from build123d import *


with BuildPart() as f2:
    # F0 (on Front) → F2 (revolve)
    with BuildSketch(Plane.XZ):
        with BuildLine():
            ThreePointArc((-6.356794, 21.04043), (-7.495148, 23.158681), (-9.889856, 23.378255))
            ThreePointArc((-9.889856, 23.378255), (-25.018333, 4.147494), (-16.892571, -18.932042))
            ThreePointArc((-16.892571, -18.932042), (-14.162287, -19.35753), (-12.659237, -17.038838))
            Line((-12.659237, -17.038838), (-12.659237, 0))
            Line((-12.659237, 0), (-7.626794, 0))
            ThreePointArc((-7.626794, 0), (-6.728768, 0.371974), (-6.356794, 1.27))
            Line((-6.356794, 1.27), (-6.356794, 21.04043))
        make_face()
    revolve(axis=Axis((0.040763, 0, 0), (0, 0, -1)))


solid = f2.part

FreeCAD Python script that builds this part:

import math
import FreeCAD as App
import Part
import Sketcher
Q = App.Units.Quantity

doc = App.newDocument("Part")
body = doc.addObject("PartDesign::Body", "Body")

sketch1 = body.newObject("Sketcher::SketchObject", "Sketch")
sketch1.AttachmentSupport = (doc.getObject("XZ_Plane"), [""])
sketch1.MapMode = "FlatFace"
sketch1.addGeometry([
    Part.ArcOfCircle(Part.Circle(App.Vector(-8.9, 21, 0), App.Vector(0, 0, 1), 2.5), math.radians(0), math.radians(113)),
    Part.ArcOfCircle(Part.Circle(App.Vector(0, 0, 0), App.Vector(0, 0, 1), 25.4), math.radians(113), math.radians(228)),
    Part.ArcOfCircle(Part.Circle(App.Vector(-15.2, -17, 0), App.Vector(0, 0, 1), 2.5), math.radians(-132), math.radians(0)),
    Part.LineSegment(App.Vector(-12.7, -17, 0), App.Vector(-12.7, 0, 0)),
    Part.LineSegment(App.Vector(-12.7, 0, 0), App.Vector(-7.6, 0, 0)),
    Part.ArcOfCircle(Part.Circle(App.Vector(-7.6, 1.3, 0), App.Vector(0, 0, 1), 1.3), math.radians(-90), math.radians(0)),
    Part.LineSegment(App.Vector(-6.4, 1.3, 0), App.Vector(-6.4, 21, 0)),
], False)
sketch1.addGeometry(Part.LineSegment(App.Vector(0, 23.4, 0), App.Vector(0, -18.9, 0)), True)
sketch1.addConstraint([
    Sketcher.Constraint("Tangent", 0, 2, 1, 1),
    Sketcher.Constraint("Tangent", 1, 2, 2, 1),
    Sketcher.Constraint("Tangent", 2, 2, 3, 1),
    Sketcher.Constraint("Coincident", 3, 2, 4, 1),
    Sketcher.Constraint("Tangent", 4, 2, 5, 1),
    Sketcher.Constraint("Tangent", 5, 2, 6, 1),
    Sketcher.Constraint("Tangent", 6, 2, 0, 1),
    Sketcher.Constraint("Vertical", 3),
    Sketcher.Constraint("Horizontal", 4),
    Sketcher.Constraint("Vertical", 6),
    Sketcher.Constraint("Vertical", 7),
    Sketcher.Constraint("Equal", 0, 2),
    Sketcher.Constraint("PointOnObject", 1, 3, -1),
    Sketcher.Constraint("PointOnObject", 3, 2, -1),
    Sketcher.Constraint("Horizontal", 0, 2, 7, 1),
    Sketcher.Constraint("Horizontal", 1, 2, 7, 2),
    Sketcher.Constraint("Vertical", 1, 3, 7, 1),
    Sketcher.Constraint("Radius", 1, Q("1 in")),
    Sketcher.Constraint("Radius", 0, Q("0.1 in")),
    Sketcher.Constraint("Radius", 5, Q("0.0499999 in")),
    Sketcher.Constraint("DistanceX", 2, 3, 1, 3, Q("0.6 in")),
    Sketcher.Constraint("DistanceY", 6, 1, 6, 2, Q("19.77043 mm")),
    Sketcher.Constraint("DistanceX", 1, 2, -1, 1, Q("16.892571 mm")),
])
revolution = body.newObject("PartDesign::Revolution", "Revolution")
revolution.Profile = sketch1
revolution.ReferenceAxis = (sketch1, ["Axis0"])
revolution.Angle = 360

doc.recompute()
